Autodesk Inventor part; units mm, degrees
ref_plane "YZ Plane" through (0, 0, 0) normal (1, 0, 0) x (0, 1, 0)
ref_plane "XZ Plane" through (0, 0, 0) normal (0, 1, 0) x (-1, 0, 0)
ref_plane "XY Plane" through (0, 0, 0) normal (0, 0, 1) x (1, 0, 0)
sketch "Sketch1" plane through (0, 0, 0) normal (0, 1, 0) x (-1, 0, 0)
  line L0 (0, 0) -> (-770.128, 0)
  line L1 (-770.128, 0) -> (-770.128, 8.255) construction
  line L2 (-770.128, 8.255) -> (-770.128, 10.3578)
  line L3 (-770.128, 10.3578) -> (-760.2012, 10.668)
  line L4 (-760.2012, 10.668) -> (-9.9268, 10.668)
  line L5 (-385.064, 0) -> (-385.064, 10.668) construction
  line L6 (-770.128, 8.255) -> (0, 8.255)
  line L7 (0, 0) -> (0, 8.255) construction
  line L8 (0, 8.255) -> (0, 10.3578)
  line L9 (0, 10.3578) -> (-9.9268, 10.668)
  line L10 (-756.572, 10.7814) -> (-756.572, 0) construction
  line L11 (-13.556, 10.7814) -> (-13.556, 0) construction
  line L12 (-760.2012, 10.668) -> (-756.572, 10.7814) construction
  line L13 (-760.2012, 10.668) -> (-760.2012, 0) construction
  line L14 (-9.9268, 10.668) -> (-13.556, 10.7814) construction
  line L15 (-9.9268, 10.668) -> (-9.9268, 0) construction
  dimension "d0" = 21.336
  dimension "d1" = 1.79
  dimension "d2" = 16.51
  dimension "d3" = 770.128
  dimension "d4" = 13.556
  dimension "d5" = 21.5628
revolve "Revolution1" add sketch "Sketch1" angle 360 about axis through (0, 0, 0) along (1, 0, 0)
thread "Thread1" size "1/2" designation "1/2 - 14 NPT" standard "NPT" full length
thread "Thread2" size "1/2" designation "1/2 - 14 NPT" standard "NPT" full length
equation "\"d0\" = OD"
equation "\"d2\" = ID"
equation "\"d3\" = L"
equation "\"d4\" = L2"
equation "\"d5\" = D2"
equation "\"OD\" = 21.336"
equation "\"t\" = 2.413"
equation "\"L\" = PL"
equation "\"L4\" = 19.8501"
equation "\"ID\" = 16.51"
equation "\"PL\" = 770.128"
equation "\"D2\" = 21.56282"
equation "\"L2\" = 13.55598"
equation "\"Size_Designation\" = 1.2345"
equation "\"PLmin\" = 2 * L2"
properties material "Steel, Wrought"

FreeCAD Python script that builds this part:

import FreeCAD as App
import Part
import Sketcher
Q = App.Units.Quantity


def add_polygon(sketch, points):
    """Adds a closed chain of lines whose ends are joined by coincident constraints."""
    first, n = sketch.GeometryCount, len(points)
    for a, b in zip(points, points[1:] + points[:1]):
        sketch.addGeometry(Part.LineSegment(App.Vector(*a, 0), App.Vector(*b, 0)), False)
    for i in range(n):
        sketch.addConstraint(Sketcher.Constraint("Coincident", first + i, 2, first + (i + 1) % n, 1))

doc = App.newDocument("Part")
params = doc.addObject("Spreadsheet::Sheet", "Params")
for row, (alias, value) in enumerate([
    ("sketch1_width", "30.32 in"),
    ("sketch1_length", "0.391 in"),
    ("revolution_angle", "360 deg"),
], start=1):
    params.set(f"A{row}", alias)
    params.set(f"B{row}", "=" + value)
    params.setAlias(f"B{row}", alias)

body = doc.addObject("PartDesign::Body", "Body")

sketch1 = body.newObject("Sketcher::SketchObject", "Sketch")
sketch1.AttachmentSupport = (doc.getObject("XZ_Plane"), [""])
sketch1.MapMode = "FlatFace"
add_polygon(sketch1, [(770.128, 10.3578), (770.128, 8.255), (0, 8.255), (0, 10.3578), (9.9268, 10.668), (760.2012, 10.668)])
sketch1.addConstraint(Sketcher.Constraint("Vertical", 0))
sketch1.addConstraint(Sketcher.Constraint("Horizontal", 1))
sketch1.addConstraint(Sketcher.Constraint("Vertical", 2))
sketch1.addConstraint(Sketcher.Constraint("Horizontal", 4))
sketch1.addConstraint(Sketcher.Constraint("PointOnObject", 1, 2, -2))
sketch1.addConstraint(Sketcher.Constraint("Horizontal", 2, 2, 5, 2))
sketch1.addConstraint(Sketcher.Constraint("Equal", 3, 5))
sketch1.addConstraint(Sketcher.Constraint("DistanceX", 1, 2, 1, 1, Q("30.32 in")))
sketch1.addConstraint(Sketcher.Constraint("Angle", 3, Q("1.7898 deg")))
sketch1.addConstraint(Sketcher.Constraint("DistanceY", -1, 1, 3, 2, Q("0.42 in")))
sketch1.addConstraint(Sketcher.Constraint("Distance", 3, Q("0.391 in")))
sketch1.addConstraint(Sketcher.Constraint("DistanceY", -1, 1, 0, 2, Q("0.325 in")))
sketch1.setExpression("Constraints[13]", "Params.sketch1_width")
sketch1.setExpression("Constraints[16]", "Params.sketch1_length")
revolution = body.newObject("PartDesign::Revolution", "Revolution")
revolution.Profile = sketch1
revolution.ReferenceAxis = (sketch1, ["H_Axis"])
revolution.setExpression("Angle", "Params.revolution_angle")

doc.recompute()
